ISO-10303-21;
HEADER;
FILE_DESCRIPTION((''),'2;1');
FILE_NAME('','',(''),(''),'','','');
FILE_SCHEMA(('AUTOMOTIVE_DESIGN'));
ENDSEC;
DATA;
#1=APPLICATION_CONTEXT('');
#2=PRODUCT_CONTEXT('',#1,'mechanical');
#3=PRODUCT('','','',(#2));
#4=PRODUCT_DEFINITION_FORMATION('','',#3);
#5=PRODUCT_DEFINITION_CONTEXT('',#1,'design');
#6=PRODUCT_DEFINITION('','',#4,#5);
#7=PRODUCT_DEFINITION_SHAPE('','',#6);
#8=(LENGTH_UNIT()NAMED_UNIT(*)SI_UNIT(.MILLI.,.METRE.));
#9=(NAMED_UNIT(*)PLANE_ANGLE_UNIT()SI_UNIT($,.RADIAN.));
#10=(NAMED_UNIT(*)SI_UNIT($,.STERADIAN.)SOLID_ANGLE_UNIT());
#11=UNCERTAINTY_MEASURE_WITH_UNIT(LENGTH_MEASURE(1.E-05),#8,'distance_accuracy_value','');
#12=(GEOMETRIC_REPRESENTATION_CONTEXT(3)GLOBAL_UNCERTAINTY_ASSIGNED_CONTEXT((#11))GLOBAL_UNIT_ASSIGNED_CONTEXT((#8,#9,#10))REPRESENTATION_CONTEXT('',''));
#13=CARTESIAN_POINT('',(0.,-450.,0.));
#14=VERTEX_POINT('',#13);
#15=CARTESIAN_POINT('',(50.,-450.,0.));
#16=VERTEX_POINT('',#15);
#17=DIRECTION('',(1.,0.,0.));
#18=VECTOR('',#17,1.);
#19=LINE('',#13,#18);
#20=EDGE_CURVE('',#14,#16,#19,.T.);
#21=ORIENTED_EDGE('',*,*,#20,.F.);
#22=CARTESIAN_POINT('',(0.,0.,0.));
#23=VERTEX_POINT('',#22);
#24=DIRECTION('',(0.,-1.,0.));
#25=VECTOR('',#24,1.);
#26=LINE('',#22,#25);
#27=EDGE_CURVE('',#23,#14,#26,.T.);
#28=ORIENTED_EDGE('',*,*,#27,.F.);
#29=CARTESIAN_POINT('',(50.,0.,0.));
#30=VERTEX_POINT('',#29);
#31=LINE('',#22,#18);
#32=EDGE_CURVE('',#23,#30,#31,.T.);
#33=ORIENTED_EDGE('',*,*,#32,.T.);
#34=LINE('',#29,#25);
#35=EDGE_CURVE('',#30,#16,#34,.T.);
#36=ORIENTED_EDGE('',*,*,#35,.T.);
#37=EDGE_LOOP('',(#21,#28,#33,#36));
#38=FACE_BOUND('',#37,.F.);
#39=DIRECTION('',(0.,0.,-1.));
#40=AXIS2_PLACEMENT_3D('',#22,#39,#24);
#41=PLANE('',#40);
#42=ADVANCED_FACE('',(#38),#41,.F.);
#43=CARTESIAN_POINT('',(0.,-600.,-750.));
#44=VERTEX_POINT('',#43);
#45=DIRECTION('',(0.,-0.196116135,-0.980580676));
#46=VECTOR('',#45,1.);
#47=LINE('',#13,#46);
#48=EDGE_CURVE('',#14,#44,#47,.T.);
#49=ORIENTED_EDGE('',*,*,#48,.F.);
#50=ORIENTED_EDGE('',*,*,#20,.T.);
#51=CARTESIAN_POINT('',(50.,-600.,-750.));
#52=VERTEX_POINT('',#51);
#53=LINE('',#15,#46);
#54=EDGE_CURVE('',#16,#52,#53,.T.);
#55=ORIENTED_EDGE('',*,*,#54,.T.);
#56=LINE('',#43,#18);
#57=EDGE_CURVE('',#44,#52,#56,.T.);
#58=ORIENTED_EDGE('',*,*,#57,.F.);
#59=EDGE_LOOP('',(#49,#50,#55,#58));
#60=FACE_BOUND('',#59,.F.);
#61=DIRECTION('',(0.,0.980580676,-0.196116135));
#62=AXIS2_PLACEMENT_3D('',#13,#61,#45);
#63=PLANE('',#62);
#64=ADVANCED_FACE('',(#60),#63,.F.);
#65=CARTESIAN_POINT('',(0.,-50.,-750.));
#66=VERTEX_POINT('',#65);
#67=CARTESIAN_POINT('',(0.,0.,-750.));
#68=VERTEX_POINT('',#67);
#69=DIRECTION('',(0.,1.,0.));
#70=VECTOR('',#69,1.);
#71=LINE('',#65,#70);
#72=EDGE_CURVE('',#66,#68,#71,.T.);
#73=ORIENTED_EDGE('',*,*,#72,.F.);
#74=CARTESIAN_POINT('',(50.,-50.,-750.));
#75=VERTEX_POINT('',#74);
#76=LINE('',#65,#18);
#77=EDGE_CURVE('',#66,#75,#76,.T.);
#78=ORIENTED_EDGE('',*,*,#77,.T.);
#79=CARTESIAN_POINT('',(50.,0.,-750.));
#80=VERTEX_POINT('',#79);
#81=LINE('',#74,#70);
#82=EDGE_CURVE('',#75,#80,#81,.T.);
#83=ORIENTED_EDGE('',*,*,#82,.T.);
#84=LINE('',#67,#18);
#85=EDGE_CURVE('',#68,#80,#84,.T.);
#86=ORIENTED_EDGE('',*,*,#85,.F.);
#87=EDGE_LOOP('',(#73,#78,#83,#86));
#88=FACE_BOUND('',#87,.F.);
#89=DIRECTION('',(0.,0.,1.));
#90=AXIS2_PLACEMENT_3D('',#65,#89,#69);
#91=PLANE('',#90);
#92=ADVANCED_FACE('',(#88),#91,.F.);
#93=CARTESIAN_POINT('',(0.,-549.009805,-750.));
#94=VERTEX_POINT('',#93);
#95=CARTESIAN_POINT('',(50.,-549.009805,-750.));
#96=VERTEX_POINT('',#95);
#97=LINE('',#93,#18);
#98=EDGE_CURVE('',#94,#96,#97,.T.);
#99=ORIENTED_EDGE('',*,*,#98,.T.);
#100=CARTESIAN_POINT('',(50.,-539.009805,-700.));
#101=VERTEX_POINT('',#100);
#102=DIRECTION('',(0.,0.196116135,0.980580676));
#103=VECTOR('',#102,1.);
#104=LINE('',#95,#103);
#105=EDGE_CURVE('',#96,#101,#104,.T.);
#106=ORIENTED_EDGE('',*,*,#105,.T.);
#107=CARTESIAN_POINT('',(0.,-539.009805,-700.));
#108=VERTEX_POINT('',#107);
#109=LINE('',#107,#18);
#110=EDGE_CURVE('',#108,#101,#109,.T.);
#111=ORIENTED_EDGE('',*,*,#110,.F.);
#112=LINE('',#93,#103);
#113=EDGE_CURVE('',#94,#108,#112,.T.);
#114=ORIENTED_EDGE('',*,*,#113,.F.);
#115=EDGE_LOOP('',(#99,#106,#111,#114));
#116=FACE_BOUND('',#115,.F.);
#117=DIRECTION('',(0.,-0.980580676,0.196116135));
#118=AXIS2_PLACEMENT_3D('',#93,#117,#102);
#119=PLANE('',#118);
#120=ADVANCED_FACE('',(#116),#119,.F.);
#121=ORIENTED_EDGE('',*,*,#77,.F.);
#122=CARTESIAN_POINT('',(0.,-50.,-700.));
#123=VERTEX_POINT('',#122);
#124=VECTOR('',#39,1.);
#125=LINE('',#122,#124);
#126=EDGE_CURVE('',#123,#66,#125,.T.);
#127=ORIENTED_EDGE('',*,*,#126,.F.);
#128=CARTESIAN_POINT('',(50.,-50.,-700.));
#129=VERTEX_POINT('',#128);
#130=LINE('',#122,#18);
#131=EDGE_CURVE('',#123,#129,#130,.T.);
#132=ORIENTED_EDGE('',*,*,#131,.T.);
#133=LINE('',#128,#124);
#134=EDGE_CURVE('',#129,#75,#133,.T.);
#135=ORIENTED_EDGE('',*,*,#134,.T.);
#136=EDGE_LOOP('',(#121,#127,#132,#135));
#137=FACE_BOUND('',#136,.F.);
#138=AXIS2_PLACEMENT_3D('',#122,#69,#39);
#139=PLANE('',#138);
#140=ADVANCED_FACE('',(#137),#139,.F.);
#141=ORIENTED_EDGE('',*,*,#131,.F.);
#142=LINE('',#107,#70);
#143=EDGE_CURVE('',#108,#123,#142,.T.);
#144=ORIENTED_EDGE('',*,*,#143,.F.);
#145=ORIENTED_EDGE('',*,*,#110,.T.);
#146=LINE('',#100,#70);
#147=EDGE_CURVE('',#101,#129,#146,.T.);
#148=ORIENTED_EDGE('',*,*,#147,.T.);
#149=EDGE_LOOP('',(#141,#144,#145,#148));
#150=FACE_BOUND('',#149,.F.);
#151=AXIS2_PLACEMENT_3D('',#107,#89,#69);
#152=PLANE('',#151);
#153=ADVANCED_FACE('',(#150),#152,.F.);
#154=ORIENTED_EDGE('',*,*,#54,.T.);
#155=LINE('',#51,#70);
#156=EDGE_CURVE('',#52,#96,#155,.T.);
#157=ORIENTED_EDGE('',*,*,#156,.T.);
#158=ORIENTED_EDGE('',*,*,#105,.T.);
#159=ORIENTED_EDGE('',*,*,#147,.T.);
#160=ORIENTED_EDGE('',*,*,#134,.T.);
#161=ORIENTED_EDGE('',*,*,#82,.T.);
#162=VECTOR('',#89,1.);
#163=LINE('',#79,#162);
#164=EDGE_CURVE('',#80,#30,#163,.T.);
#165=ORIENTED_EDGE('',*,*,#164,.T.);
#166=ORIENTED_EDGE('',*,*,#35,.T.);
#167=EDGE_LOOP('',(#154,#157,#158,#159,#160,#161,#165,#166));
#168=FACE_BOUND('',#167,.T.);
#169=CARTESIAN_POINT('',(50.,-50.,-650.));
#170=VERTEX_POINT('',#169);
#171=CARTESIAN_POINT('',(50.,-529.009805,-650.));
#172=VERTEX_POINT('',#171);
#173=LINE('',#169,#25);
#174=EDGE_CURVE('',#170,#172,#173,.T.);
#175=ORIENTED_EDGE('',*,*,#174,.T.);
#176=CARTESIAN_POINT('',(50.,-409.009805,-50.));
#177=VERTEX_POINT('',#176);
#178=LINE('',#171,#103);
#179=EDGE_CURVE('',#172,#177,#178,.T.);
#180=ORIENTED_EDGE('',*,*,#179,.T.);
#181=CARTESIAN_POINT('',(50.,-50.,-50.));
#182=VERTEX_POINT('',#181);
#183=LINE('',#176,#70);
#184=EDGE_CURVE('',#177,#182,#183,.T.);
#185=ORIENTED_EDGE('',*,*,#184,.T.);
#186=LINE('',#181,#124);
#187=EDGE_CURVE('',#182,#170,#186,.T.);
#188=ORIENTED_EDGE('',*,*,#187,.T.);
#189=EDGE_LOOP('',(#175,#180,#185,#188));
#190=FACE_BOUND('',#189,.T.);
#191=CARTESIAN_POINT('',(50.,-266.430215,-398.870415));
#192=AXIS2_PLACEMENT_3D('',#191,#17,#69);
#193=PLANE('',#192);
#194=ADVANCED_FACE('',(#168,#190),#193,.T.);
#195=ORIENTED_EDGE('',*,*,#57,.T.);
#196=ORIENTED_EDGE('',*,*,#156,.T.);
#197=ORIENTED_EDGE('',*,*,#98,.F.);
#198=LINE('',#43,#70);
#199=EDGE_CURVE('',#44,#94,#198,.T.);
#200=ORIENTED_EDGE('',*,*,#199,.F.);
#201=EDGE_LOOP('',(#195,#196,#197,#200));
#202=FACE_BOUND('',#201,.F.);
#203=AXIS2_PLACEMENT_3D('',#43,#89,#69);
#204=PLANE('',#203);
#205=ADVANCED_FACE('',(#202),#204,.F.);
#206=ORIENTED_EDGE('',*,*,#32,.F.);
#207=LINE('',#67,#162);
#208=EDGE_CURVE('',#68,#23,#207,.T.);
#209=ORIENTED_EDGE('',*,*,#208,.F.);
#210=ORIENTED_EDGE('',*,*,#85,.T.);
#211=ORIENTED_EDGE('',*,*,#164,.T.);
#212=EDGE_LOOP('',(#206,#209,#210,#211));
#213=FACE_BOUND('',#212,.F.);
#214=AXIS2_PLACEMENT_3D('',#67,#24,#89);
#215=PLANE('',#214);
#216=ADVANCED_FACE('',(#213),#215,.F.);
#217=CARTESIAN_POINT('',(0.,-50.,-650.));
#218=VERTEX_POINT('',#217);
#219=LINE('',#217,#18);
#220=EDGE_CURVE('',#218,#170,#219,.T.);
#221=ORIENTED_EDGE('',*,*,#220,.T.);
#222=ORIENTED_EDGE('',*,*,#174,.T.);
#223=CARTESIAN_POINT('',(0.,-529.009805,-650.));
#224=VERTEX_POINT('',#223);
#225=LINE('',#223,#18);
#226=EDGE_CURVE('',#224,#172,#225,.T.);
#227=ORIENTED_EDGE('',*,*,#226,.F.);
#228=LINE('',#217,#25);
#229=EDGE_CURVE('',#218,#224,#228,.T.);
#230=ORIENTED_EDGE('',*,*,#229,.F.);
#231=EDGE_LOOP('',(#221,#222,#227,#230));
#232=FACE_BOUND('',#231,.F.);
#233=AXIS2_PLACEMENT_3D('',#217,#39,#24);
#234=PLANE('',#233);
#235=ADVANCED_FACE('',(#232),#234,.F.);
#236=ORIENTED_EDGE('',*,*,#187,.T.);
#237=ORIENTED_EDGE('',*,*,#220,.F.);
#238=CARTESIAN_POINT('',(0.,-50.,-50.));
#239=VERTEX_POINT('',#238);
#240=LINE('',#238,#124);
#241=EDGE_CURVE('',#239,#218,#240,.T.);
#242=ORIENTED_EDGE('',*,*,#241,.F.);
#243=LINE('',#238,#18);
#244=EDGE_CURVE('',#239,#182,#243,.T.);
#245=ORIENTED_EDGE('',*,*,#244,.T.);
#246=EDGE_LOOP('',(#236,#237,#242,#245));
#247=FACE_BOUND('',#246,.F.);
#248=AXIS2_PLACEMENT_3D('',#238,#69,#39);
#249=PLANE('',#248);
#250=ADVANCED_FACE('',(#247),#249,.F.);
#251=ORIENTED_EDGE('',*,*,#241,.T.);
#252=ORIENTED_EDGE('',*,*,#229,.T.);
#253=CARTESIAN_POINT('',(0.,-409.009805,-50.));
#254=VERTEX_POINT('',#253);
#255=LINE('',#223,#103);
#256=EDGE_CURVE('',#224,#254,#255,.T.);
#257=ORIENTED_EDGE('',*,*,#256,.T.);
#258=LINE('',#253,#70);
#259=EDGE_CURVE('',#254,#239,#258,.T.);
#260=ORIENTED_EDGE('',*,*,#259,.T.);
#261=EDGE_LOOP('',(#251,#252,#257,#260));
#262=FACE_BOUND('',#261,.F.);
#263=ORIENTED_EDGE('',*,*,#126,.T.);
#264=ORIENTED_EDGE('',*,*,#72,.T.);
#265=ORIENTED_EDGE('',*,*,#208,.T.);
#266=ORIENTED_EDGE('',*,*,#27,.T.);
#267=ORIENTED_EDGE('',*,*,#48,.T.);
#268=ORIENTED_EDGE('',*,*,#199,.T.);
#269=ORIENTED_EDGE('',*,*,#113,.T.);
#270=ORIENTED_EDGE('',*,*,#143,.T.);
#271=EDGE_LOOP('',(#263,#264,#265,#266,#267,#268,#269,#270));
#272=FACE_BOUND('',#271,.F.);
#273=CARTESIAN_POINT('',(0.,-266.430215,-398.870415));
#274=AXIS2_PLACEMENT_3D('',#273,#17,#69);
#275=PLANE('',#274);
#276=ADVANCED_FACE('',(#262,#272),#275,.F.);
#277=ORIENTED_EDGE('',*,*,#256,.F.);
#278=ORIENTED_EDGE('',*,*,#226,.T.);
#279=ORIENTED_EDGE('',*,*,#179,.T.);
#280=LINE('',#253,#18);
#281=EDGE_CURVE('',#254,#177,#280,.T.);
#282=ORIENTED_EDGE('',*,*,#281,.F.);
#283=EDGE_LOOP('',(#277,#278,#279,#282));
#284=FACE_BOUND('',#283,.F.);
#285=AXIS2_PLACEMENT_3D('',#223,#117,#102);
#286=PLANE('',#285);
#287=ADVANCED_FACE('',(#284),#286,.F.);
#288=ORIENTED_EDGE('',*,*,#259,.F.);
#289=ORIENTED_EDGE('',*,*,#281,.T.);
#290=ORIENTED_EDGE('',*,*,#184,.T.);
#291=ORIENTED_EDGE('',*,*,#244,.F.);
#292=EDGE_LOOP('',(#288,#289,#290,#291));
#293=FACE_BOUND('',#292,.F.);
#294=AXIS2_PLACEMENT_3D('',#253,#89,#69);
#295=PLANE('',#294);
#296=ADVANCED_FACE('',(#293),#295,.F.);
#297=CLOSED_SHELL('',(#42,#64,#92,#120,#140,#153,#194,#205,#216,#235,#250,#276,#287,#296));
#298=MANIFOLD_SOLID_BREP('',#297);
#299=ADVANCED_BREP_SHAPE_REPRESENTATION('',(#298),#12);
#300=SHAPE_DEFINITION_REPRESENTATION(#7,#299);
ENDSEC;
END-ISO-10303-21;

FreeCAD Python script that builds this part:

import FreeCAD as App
import Part
import Sketcher
from FreeCAD import Vector


def add_polygon(sketch, points):
    """Adds a closed chain of lines whose ends are joined by coincident constraints."""
    first, n = sketch.GeometryCount, len(points)
    for a, b in zip(points, points[1:] + points[:1]):
        sketch.addGeometry(Part.LineSegment(App.Vector(*a, 0), App.Vector(*b, 0)), False)
    for i in range(n):
        sketch.addConstraint(Sketcher.Constraint("Coincident", first + i, 2, first + (i + 1) % n, 1))

doc = App.newDocument("Part")
params = doc.addObject("Spreadsheet::Sheet", "Params")
for row, (alias, value) in enumerate([
    ("sketch1_width", "50 mm"),
    ("sketch1_width2", "450 mm"),
    ("sketch1_height", "750 mm"),
    ("sketch1_height2", "600 mm"),
    ("pad1_length", "50 mm"),
], start=1):
    params.set(f"A{row}", alias)
    params.set(f"B{row}", "=" + value)
    params.setAlias(f"B{row}", alias)

body = doc.addObject("PartDesign::Body", "Body")

sketch1 = doc.addObject("Sketcher::SketchObject", "Sketch")
body.addObject(sketch1)
sketch1.AttachmentSupport = (doc.YZ_Plane, [""])
sketch1.MapMode = "FlatFace"
add_polygon(sketch1, [(-50, -750), (0, -750), (0, 0), (-450, 0), (-600, -750), (-549.009805, -750), (-539.009805, -700), (-50, -700)])
add_polygon(sketch1, [(-409.009805, -50), (-50, -50), (-50, -650), (-529.009805, -650)])
sketch1.addConstraint([
    Sketcher.Constraint("Horizontal", 0),
    Sketcher.Constraint("Vertical", 1),
    Sketcher.Constraint("Horizontal", 2),
    Sketcher.Constraint("Horizontal", 4),
    Sketcher.Constraint("Horizontal", 6),
    Sketcher.Constraint("Vertical", 7),
    Sketcher.Constraint("Horizontal", 8),
    Sketcher.Constraint("Vertical", 9),
    Sketcher.Constraint("Horizontal", 10),
    Sketcher.Constraint("Coincident", 1, 2, -1, 1),
    Sketcher.Constraint("Parallel", 3, 5),
    Sketcher.Constraint("Parallel", 5, 11),
    Sketcher.Constraint("Horizontal", 0, 2, 3, 2),
    Sketcher.Constraint("Vertical", 7, 2, 8, 2),
    Sketcher.Constraint("Equal", 0, 7),
    Sketcher.Constraint("DistanceX", 0, 1, 0, 2, 50.0),
    Sketcher.Constraint("DistanceX", 2, 2, 2, 1, 450.0),
    Sketcher.Constraint("DistanceY", 1, 1, 1, 2, 750.0),
    Sketcher.Constraint("DistanceY", 9, 2, 9, 1, 600.0),
    Sketcher.Constraint("DistanceX", 3, 2, -1, 1, 600.0),
    Sketcher.Constraint("DistanceY", 8, 2, -1, 1, 50.0),
    Sketcher.Constraint("DistanceX", 5, 2, 10, 2, 10.0),
    Sketcher.Constraint("DistanceX", 4, 1, 4, 2, 50.990195),
])
sketch1.setExpression("Constraints[27]", "Params.sketch1_width")
sketch1.setExpression("Constraints[28]", "Params.sketch1_width2")
sketch1.setExpression("Constraints[29]", "Params.sketch1_height")
sketch1.setExpression("Constraints[30]", "Params.sketch1_height2")
pad1 = doc.addObject("PartDesign::Pad", "Pad")
body.addObject(pad1)
pad1.Profile = sketch1
pad1.setExpression("Length", "Params.pad1_length")

doc.recompute()
